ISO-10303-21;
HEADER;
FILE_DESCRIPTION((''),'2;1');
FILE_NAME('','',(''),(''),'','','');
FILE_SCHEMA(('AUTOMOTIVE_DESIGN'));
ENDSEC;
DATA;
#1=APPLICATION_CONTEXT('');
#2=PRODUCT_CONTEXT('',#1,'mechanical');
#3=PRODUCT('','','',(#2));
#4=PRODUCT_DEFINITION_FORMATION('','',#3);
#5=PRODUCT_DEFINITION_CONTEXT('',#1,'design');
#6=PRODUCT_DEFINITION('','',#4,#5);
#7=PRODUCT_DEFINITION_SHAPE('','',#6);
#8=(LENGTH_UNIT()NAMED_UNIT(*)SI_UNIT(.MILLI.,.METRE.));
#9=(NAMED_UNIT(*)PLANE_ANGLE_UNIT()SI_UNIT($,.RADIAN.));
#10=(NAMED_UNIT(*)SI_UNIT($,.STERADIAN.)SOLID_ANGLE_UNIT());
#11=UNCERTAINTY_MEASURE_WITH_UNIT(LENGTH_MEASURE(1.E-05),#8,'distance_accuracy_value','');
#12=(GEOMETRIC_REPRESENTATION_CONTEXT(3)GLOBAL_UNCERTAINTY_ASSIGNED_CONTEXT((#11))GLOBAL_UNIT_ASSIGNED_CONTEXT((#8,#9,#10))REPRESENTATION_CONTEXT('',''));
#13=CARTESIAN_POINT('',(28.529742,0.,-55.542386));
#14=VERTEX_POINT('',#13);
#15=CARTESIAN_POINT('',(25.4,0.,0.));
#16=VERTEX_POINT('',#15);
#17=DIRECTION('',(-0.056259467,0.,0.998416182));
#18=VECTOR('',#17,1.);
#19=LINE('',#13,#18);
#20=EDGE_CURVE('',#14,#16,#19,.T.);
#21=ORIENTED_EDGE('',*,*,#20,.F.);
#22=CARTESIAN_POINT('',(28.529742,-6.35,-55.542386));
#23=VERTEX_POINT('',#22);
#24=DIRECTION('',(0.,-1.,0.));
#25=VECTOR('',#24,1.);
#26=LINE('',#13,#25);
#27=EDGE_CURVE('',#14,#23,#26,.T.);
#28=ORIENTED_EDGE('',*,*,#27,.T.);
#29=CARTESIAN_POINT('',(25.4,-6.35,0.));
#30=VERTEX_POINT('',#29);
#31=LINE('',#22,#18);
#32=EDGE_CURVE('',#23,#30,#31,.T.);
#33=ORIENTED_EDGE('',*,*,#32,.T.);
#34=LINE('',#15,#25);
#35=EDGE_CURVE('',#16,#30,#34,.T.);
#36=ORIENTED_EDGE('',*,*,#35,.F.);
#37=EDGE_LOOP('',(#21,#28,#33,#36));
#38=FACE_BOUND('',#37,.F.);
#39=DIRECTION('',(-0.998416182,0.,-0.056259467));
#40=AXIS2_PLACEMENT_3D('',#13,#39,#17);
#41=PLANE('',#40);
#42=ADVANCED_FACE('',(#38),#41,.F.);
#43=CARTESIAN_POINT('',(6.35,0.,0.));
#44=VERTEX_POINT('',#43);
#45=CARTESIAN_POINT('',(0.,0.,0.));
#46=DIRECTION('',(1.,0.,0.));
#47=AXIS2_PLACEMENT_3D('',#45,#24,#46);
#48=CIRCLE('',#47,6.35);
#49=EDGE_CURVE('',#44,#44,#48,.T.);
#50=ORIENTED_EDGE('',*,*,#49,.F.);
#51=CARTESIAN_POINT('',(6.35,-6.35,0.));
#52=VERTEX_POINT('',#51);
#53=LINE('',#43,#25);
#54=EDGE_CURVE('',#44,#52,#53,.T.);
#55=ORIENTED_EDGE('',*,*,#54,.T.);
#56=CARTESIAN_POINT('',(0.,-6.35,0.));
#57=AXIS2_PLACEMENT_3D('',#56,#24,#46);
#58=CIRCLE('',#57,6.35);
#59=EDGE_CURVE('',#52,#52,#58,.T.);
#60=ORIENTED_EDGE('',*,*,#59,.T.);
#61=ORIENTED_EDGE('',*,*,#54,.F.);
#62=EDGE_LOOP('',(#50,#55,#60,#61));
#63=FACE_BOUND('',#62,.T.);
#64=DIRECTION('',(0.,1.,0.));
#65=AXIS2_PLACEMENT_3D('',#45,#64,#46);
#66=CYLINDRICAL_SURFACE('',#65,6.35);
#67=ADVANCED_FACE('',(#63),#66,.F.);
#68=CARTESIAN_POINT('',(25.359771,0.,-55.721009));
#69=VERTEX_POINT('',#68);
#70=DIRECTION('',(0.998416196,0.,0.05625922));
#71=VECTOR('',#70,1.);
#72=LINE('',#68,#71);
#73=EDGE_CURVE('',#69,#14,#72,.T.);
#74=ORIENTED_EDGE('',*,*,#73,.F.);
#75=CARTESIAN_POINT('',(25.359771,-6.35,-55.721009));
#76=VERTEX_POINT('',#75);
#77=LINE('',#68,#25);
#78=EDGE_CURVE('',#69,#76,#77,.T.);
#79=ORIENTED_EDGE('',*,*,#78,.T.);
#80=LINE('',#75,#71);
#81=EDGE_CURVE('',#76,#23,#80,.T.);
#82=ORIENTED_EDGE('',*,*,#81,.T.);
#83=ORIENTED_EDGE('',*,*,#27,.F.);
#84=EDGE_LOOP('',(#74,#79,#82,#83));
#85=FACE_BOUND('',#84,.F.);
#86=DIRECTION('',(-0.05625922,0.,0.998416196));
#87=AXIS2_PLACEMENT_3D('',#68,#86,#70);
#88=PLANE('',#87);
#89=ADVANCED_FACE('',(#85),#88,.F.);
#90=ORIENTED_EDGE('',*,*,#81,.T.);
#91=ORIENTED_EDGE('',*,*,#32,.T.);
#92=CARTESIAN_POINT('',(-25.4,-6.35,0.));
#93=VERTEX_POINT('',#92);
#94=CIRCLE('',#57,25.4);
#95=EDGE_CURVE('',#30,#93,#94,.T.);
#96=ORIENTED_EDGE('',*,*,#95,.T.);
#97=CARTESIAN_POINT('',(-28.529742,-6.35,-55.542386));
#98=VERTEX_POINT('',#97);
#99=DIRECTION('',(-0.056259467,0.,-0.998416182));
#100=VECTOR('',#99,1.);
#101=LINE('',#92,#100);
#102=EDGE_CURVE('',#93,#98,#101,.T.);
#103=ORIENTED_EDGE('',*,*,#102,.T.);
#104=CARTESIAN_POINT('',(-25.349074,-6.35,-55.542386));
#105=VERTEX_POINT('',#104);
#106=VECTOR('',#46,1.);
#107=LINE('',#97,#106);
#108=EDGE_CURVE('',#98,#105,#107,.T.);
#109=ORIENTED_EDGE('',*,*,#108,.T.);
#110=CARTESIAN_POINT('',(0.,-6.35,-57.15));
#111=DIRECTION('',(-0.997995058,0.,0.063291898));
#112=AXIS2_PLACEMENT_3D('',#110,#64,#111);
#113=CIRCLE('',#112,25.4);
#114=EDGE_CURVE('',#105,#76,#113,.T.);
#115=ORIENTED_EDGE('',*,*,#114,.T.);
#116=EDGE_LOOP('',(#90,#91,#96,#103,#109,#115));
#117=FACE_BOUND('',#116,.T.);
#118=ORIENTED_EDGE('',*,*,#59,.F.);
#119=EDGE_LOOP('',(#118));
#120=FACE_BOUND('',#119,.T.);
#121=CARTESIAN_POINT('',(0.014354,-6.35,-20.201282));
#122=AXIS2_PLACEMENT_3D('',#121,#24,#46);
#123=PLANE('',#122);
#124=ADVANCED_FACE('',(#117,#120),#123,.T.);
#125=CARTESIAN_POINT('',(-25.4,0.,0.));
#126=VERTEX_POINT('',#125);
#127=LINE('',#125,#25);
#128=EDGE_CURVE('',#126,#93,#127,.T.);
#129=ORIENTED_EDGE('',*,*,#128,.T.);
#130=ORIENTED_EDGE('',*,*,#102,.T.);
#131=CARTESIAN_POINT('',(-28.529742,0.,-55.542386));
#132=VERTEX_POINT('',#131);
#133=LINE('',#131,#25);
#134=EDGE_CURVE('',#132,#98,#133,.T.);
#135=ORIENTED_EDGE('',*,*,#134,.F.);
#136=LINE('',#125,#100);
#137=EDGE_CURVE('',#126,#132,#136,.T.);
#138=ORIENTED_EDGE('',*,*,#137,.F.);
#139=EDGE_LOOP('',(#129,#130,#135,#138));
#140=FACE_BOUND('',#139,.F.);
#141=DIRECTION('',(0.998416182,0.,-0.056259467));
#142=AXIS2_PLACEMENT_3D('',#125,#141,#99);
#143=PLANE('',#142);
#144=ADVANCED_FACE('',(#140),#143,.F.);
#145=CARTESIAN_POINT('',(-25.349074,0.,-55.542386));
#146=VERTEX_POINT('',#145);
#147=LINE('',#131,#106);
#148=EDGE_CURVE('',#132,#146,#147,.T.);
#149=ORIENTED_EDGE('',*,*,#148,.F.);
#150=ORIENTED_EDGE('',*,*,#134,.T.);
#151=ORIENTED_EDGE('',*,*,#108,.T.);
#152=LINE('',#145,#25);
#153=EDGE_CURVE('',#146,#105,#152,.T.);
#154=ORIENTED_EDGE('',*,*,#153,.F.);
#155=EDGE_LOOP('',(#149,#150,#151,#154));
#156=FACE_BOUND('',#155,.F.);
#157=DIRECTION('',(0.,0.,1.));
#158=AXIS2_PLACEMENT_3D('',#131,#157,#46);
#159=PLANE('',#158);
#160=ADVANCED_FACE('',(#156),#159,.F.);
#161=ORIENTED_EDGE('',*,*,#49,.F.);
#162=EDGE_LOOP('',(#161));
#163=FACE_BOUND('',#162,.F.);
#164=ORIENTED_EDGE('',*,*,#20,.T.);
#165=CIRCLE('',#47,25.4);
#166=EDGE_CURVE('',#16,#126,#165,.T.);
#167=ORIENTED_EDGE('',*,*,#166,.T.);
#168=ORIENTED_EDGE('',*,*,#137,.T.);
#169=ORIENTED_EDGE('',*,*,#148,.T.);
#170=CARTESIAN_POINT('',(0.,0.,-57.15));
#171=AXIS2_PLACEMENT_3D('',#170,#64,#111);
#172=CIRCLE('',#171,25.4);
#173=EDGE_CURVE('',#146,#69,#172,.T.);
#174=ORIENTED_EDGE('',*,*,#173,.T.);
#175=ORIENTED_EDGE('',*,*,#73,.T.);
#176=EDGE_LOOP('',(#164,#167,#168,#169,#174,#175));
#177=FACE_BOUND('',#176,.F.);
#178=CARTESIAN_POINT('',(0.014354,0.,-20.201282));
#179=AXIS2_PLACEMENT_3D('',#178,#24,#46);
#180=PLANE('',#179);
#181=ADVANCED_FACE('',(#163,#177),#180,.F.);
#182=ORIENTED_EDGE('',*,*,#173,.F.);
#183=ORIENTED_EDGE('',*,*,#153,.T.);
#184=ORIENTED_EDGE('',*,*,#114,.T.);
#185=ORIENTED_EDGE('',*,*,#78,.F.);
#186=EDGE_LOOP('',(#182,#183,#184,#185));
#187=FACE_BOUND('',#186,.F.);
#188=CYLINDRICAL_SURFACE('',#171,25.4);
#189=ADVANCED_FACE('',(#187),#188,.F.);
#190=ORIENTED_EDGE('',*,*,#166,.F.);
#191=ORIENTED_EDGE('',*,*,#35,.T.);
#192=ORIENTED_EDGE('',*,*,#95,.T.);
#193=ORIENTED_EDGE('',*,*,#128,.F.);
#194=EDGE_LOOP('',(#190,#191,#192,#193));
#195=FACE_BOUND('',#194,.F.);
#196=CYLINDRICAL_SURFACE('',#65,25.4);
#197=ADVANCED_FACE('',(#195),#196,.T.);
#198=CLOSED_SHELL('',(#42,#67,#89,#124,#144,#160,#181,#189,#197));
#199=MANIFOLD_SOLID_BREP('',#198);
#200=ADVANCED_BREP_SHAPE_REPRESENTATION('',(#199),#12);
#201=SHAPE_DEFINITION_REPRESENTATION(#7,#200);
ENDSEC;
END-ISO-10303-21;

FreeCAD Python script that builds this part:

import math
import FreeCAD as App
import Part
import Sketcher
from FreeCAD import Vector
Q = App.Units.Quantity

doc = App.newDocument("Part")
body = doc.addObject("PartDesign::Body", "Body")

# Sketch on XZ plane
sketch1 = body.newObject("Sketcher::SketchObject", "Sketch")
sketch1.AttachmentSupport = (doc.getObject("XZ_Plane"), [""])
sketch1.MapMode = "FlatFace"
sketch1.addGeometry([
    Part.LineSegment(Vector(28.529742, -55.542386, 0), Vector(25.4, 0, 0)),  # 0
    Part.ArcOfCircle(Part.Circle(Vector(0, 0, 0), Vector(0, 0, 1), 25.4), math.radians(0), math.radians(180)),  # 1
    Part.LineSegment(Vector(-25.4, 0, 0), Vector(-28.529742, -55.542386, 0)),  # 2
    Part.LineSegment(Vector(-28.529742, -55.542386, 0), Vector(-25.349074, -55.542386, 0)),  # 3
    Part.ArcOfCircle(Part.Circle(Vector(0, -57.15, 0), Vector(0, 0, 1), 25.4), math.radians(3.225135), math.radians(176.371216)),  # 4
    Part.LineSegment(Vector(25.359771, -55.721009, 0), Vector(28.529742, -55.542386, 0)),  # 5
    Part.Circle(Vector(0, 0, 0), Vector(0, 0, 1), 6.35),  # 6
], False)
sketch1.addConstraint([
    Sketcher.Constraint("Coincident", 0, 2, 1, 1),
    Sketcher.Constraint("Coincident", 1, 2, 2, 1),
    Sketcher.Constraint("Coincident", 2, 2, 3, 1),
    Sketcher.Constraint("Coincident", 3, 2, 4, 2),
    Sketcher.Constraint("Coincident", 4, 1, 5, 1),
    Sketcher.Constraint("Coincident", 5, 2, 0, 1),
    Sketcher.Constraint("Horizontal", 3),
    Sketcher.Constraint("Coincident", 1, 3, -1, 1),
    Sketcher.Constraint("Coincident", 6, 3, -1, 1),
    Sketcher.Constraint("Equal", 1, 4),
    Sketcher.Constraint("Symmetric", 2, 2, 5, 2, -2),
    Sketcher.Constraint("PointOnObject", 4, 3, -2),
    Sketcher.Constraint("PointOnObject", 0, 2, -1),
    Sketcher.Constraint("PointOnObject", 1, 2, -1),
    Sketcher.Constraint("Perpendicular", 0, 5),
    Sketcher.Constraint("Radius", 1, Q("1 in")),
    Sketcher.Constraint("Diameter", 6, Q("0.5 in")),
    Sketcher.Constraint("DistanceY", 4, 3, -1, 1, Q("2.25 in")),
    Sketcher.Constraint("Distance", 5, Q("0.125 in")),
    Sketcher.Constraint("DistanceX", 3, 1, 3, 2, Q("3.180668 mm")),
])
pad1 = body.newObject("PartDesign::Pad", "Pad")
pad1.Profile = sketch1
pad1.Length = Q("0.25 in")

doc.recompute()
